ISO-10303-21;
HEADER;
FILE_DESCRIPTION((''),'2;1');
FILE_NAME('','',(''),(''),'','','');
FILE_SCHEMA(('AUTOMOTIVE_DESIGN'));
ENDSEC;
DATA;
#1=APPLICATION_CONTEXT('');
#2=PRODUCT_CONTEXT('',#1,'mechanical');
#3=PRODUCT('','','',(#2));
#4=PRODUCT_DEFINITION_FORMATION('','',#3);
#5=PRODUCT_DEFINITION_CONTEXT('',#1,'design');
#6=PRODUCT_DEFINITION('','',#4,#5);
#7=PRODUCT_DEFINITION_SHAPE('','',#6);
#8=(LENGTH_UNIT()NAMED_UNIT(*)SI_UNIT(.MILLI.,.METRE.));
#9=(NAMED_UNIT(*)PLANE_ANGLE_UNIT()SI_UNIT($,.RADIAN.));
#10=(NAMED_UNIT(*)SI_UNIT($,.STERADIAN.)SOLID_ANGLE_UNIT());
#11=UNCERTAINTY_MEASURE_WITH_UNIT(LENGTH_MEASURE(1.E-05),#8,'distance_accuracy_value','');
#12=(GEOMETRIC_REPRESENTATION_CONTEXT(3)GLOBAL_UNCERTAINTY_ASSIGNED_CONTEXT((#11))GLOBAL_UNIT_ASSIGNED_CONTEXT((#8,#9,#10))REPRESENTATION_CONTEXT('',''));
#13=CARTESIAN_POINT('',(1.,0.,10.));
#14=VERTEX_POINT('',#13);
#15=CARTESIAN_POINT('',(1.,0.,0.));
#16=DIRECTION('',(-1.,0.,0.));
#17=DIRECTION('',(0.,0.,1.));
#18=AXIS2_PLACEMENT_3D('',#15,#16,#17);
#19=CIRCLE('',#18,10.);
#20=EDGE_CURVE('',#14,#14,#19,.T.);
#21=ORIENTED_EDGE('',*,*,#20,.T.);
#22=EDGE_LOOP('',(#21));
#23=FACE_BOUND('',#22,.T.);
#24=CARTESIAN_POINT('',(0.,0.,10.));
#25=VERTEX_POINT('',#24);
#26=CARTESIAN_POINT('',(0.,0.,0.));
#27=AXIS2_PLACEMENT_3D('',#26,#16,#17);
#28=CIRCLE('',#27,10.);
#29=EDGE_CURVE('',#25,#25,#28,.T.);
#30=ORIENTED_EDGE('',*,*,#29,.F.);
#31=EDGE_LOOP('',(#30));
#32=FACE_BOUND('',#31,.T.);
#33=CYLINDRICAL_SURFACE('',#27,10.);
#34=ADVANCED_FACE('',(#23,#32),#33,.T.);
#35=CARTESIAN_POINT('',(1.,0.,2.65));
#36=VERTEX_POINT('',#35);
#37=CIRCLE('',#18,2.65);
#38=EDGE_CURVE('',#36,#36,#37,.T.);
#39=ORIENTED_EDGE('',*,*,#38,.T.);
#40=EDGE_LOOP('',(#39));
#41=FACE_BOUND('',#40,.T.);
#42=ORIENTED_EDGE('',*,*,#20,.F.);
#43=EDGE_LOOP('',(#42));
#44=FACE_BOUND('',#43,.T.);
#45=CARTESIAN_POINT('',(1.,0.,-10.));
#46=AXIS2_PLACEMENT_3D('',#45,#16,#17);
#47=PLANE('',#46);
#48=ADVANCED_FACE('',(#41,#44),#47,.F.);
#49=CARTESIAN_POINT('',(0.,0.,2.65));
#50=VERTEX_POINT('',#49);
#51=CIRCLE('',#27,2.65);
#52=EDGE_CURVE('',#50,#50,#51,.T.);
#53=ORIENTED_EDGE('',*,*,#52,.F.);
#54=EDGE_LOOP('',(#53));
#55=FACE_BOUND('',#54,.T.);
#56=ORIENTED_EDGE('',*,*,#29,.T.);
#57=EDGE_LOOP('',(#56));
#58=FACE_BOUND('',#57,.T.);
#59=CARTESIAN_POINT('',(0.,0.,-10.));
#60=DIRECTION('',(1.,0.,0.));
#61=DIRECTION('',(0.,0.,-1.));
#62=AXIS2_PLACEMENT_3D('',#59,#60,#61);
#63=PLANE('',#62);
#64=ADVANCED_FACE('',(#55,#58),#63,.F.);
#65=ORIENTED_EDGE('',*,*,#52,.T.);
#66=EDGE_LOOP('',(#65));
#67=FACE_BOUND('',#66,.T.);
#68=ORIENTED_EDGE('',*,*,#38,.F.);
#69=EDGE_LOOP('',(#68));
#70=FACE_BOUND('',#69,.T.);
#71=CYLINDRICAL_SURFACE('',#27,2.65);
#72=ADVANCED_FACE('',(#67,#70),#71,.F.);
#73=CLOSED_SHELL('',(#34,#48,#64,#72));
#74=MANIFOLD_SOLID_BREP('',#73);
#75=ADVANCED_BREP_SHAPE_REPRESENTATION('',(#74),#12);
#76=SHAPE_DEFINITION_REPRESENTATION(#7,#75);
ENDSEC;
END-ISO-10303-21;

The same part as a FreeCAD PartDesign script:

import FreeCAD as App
import Part
import Sketcher


def add_polygon(sketch, points):
    """Adds a closed chain of lines whose ends are joined by coincident constraints."""
    first, n = sketch.GeometryCount, len(points)
    for a, b in zip(points, points[1:] + points[:1]):
        sketch.addGeometry(Part.LineSegment(App.Vector(*a, 0), App.Vector(*b, 0)), False)
    for i in range(n):
        sketch.addConstraint(Sketcher.Constraint("Coincident", first + i, 2, first + (i + 1) % n, 1))

doc = App.newDocument("Part")
body = doc.addObject("PartDesign::Body", "Body")

sketch1 = body.newObject("Sketcher::SketchObject", "Sketch")
sketch1.AttachmentSupport = (doc.getObject("XZ_Plane"), [""])
sketch1.MapMode = "FlatFace"
add_polygon(sketch1, [(0, -10), (0, -2.65), (1, -2.65), (1, -10)])
sketch1.addConstraint([
    Sketcher.Constraint("Vertical", 0),
    Sketcher.Constraint("Horizontal", 1),
    Sketcher.Constraint("Vertical", 2),
    Sketcher.Constraint("Horizontal", 3),
    Sketcher.Constraint("PointOnObject", 0, 2, -2),
    Sketcher.Constraint("DistanceX", 1, 1, 1, 2, 1.0),
    Sketcher.Constraint("DistanceY", 2, 2, -1, 1, 10.0),
    Sketcher.Constraint("DistanceY", 0, 1, 0, 2, 7.35),
])
revolution = body.newObject("PartDesign::Revolution", "Revolution")
revolution.Profile = sketch1
revolution.ReferenceAxis = (sketch1, ["H_Axis"])
revolution.Angle = 360

doc.recompute()
